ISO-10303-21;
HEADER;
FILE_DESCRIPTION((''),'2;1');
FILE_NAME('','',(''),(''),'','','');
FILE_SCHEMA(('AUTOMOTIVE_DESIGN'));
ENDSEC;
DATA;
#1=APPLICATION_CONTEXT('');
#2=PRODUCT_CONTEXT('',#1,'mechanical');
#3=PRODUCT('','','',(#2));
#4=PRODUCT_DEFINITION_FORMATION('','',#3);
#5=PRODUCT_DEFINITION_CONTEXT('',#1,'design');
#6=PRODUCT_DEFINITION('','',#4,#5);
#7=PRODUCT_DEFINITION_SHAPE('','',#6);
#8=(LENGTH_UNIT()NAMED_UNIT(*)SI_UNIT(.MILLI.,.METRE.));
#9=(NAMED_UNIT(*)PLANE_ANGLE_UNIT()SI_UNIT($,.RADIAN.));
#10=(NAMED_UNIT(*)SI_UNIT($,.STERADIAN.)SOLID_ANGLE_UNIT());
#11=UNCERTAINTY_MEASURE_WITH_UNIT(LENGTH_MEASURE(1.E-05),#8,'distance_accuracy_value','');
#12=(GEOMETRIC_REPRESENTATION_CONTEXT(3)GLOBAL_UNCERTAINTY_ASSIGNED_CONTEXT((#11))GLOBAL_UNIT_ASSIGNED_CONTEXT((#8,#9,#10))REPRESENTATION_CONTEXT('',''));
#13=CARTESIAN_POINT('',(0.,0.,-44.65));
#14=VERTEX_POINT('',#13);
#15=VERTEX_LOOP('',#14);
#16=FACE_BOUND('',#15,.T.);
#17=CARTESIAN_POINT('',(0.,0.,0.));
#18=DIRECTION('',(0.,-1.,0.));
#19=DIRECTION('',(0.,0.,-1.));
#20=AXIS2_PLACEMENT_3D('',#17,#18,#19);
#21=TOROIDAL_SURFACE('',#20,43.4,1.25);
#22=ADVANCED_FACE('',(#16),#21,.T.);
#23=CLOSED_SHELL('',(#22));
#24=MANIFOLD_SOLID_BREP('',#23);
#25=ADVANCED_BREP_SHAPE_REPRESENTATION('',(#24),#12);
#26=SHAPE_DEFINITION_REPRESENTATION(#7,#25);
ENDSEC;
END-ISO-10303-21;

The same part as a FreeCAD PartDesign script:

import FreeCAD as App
import Part
import Sketcher
from FreeCAD import Vector
Q = App.Units.Quantity

doc = App.newDocument("Part")
body = doc.addObject("PartDesign::Body", "Body")

# Sketch on XY plane
sketch1 = doc.addObject("Sketcher::SketchObject", "Sketch")
body.addObject(sketch1)
sketch1.AttachmentSupport = (doc.XY_Plane, [""])
sketch1.MapMode = "FlatFace"
sketch1.addGeometry(Part.Circle(Vector(-43.4, 0, 0), Vector(0, 0, 1), 1.25), False)
sketch1.addConstraint([
    Sketcher.Constraint("PointOnObject", 0, 3, -1),
    Sketcher.Constraint("Diameter", 0, Q("2.5 mm")),
    Sketcher.Constraint("DistanceX", 0, 3, -1, 1, Q("43.4 mm")),
])
revolution = doc.addObject("PartDesign::Revolution", "Revolution")
body.addObject(revolution)
revolution.Profile = sketch1
revolution.ReferenceAxis = (sketch1, ["V_Axis"])
revolution.Angle = 360

doc.recompute()
